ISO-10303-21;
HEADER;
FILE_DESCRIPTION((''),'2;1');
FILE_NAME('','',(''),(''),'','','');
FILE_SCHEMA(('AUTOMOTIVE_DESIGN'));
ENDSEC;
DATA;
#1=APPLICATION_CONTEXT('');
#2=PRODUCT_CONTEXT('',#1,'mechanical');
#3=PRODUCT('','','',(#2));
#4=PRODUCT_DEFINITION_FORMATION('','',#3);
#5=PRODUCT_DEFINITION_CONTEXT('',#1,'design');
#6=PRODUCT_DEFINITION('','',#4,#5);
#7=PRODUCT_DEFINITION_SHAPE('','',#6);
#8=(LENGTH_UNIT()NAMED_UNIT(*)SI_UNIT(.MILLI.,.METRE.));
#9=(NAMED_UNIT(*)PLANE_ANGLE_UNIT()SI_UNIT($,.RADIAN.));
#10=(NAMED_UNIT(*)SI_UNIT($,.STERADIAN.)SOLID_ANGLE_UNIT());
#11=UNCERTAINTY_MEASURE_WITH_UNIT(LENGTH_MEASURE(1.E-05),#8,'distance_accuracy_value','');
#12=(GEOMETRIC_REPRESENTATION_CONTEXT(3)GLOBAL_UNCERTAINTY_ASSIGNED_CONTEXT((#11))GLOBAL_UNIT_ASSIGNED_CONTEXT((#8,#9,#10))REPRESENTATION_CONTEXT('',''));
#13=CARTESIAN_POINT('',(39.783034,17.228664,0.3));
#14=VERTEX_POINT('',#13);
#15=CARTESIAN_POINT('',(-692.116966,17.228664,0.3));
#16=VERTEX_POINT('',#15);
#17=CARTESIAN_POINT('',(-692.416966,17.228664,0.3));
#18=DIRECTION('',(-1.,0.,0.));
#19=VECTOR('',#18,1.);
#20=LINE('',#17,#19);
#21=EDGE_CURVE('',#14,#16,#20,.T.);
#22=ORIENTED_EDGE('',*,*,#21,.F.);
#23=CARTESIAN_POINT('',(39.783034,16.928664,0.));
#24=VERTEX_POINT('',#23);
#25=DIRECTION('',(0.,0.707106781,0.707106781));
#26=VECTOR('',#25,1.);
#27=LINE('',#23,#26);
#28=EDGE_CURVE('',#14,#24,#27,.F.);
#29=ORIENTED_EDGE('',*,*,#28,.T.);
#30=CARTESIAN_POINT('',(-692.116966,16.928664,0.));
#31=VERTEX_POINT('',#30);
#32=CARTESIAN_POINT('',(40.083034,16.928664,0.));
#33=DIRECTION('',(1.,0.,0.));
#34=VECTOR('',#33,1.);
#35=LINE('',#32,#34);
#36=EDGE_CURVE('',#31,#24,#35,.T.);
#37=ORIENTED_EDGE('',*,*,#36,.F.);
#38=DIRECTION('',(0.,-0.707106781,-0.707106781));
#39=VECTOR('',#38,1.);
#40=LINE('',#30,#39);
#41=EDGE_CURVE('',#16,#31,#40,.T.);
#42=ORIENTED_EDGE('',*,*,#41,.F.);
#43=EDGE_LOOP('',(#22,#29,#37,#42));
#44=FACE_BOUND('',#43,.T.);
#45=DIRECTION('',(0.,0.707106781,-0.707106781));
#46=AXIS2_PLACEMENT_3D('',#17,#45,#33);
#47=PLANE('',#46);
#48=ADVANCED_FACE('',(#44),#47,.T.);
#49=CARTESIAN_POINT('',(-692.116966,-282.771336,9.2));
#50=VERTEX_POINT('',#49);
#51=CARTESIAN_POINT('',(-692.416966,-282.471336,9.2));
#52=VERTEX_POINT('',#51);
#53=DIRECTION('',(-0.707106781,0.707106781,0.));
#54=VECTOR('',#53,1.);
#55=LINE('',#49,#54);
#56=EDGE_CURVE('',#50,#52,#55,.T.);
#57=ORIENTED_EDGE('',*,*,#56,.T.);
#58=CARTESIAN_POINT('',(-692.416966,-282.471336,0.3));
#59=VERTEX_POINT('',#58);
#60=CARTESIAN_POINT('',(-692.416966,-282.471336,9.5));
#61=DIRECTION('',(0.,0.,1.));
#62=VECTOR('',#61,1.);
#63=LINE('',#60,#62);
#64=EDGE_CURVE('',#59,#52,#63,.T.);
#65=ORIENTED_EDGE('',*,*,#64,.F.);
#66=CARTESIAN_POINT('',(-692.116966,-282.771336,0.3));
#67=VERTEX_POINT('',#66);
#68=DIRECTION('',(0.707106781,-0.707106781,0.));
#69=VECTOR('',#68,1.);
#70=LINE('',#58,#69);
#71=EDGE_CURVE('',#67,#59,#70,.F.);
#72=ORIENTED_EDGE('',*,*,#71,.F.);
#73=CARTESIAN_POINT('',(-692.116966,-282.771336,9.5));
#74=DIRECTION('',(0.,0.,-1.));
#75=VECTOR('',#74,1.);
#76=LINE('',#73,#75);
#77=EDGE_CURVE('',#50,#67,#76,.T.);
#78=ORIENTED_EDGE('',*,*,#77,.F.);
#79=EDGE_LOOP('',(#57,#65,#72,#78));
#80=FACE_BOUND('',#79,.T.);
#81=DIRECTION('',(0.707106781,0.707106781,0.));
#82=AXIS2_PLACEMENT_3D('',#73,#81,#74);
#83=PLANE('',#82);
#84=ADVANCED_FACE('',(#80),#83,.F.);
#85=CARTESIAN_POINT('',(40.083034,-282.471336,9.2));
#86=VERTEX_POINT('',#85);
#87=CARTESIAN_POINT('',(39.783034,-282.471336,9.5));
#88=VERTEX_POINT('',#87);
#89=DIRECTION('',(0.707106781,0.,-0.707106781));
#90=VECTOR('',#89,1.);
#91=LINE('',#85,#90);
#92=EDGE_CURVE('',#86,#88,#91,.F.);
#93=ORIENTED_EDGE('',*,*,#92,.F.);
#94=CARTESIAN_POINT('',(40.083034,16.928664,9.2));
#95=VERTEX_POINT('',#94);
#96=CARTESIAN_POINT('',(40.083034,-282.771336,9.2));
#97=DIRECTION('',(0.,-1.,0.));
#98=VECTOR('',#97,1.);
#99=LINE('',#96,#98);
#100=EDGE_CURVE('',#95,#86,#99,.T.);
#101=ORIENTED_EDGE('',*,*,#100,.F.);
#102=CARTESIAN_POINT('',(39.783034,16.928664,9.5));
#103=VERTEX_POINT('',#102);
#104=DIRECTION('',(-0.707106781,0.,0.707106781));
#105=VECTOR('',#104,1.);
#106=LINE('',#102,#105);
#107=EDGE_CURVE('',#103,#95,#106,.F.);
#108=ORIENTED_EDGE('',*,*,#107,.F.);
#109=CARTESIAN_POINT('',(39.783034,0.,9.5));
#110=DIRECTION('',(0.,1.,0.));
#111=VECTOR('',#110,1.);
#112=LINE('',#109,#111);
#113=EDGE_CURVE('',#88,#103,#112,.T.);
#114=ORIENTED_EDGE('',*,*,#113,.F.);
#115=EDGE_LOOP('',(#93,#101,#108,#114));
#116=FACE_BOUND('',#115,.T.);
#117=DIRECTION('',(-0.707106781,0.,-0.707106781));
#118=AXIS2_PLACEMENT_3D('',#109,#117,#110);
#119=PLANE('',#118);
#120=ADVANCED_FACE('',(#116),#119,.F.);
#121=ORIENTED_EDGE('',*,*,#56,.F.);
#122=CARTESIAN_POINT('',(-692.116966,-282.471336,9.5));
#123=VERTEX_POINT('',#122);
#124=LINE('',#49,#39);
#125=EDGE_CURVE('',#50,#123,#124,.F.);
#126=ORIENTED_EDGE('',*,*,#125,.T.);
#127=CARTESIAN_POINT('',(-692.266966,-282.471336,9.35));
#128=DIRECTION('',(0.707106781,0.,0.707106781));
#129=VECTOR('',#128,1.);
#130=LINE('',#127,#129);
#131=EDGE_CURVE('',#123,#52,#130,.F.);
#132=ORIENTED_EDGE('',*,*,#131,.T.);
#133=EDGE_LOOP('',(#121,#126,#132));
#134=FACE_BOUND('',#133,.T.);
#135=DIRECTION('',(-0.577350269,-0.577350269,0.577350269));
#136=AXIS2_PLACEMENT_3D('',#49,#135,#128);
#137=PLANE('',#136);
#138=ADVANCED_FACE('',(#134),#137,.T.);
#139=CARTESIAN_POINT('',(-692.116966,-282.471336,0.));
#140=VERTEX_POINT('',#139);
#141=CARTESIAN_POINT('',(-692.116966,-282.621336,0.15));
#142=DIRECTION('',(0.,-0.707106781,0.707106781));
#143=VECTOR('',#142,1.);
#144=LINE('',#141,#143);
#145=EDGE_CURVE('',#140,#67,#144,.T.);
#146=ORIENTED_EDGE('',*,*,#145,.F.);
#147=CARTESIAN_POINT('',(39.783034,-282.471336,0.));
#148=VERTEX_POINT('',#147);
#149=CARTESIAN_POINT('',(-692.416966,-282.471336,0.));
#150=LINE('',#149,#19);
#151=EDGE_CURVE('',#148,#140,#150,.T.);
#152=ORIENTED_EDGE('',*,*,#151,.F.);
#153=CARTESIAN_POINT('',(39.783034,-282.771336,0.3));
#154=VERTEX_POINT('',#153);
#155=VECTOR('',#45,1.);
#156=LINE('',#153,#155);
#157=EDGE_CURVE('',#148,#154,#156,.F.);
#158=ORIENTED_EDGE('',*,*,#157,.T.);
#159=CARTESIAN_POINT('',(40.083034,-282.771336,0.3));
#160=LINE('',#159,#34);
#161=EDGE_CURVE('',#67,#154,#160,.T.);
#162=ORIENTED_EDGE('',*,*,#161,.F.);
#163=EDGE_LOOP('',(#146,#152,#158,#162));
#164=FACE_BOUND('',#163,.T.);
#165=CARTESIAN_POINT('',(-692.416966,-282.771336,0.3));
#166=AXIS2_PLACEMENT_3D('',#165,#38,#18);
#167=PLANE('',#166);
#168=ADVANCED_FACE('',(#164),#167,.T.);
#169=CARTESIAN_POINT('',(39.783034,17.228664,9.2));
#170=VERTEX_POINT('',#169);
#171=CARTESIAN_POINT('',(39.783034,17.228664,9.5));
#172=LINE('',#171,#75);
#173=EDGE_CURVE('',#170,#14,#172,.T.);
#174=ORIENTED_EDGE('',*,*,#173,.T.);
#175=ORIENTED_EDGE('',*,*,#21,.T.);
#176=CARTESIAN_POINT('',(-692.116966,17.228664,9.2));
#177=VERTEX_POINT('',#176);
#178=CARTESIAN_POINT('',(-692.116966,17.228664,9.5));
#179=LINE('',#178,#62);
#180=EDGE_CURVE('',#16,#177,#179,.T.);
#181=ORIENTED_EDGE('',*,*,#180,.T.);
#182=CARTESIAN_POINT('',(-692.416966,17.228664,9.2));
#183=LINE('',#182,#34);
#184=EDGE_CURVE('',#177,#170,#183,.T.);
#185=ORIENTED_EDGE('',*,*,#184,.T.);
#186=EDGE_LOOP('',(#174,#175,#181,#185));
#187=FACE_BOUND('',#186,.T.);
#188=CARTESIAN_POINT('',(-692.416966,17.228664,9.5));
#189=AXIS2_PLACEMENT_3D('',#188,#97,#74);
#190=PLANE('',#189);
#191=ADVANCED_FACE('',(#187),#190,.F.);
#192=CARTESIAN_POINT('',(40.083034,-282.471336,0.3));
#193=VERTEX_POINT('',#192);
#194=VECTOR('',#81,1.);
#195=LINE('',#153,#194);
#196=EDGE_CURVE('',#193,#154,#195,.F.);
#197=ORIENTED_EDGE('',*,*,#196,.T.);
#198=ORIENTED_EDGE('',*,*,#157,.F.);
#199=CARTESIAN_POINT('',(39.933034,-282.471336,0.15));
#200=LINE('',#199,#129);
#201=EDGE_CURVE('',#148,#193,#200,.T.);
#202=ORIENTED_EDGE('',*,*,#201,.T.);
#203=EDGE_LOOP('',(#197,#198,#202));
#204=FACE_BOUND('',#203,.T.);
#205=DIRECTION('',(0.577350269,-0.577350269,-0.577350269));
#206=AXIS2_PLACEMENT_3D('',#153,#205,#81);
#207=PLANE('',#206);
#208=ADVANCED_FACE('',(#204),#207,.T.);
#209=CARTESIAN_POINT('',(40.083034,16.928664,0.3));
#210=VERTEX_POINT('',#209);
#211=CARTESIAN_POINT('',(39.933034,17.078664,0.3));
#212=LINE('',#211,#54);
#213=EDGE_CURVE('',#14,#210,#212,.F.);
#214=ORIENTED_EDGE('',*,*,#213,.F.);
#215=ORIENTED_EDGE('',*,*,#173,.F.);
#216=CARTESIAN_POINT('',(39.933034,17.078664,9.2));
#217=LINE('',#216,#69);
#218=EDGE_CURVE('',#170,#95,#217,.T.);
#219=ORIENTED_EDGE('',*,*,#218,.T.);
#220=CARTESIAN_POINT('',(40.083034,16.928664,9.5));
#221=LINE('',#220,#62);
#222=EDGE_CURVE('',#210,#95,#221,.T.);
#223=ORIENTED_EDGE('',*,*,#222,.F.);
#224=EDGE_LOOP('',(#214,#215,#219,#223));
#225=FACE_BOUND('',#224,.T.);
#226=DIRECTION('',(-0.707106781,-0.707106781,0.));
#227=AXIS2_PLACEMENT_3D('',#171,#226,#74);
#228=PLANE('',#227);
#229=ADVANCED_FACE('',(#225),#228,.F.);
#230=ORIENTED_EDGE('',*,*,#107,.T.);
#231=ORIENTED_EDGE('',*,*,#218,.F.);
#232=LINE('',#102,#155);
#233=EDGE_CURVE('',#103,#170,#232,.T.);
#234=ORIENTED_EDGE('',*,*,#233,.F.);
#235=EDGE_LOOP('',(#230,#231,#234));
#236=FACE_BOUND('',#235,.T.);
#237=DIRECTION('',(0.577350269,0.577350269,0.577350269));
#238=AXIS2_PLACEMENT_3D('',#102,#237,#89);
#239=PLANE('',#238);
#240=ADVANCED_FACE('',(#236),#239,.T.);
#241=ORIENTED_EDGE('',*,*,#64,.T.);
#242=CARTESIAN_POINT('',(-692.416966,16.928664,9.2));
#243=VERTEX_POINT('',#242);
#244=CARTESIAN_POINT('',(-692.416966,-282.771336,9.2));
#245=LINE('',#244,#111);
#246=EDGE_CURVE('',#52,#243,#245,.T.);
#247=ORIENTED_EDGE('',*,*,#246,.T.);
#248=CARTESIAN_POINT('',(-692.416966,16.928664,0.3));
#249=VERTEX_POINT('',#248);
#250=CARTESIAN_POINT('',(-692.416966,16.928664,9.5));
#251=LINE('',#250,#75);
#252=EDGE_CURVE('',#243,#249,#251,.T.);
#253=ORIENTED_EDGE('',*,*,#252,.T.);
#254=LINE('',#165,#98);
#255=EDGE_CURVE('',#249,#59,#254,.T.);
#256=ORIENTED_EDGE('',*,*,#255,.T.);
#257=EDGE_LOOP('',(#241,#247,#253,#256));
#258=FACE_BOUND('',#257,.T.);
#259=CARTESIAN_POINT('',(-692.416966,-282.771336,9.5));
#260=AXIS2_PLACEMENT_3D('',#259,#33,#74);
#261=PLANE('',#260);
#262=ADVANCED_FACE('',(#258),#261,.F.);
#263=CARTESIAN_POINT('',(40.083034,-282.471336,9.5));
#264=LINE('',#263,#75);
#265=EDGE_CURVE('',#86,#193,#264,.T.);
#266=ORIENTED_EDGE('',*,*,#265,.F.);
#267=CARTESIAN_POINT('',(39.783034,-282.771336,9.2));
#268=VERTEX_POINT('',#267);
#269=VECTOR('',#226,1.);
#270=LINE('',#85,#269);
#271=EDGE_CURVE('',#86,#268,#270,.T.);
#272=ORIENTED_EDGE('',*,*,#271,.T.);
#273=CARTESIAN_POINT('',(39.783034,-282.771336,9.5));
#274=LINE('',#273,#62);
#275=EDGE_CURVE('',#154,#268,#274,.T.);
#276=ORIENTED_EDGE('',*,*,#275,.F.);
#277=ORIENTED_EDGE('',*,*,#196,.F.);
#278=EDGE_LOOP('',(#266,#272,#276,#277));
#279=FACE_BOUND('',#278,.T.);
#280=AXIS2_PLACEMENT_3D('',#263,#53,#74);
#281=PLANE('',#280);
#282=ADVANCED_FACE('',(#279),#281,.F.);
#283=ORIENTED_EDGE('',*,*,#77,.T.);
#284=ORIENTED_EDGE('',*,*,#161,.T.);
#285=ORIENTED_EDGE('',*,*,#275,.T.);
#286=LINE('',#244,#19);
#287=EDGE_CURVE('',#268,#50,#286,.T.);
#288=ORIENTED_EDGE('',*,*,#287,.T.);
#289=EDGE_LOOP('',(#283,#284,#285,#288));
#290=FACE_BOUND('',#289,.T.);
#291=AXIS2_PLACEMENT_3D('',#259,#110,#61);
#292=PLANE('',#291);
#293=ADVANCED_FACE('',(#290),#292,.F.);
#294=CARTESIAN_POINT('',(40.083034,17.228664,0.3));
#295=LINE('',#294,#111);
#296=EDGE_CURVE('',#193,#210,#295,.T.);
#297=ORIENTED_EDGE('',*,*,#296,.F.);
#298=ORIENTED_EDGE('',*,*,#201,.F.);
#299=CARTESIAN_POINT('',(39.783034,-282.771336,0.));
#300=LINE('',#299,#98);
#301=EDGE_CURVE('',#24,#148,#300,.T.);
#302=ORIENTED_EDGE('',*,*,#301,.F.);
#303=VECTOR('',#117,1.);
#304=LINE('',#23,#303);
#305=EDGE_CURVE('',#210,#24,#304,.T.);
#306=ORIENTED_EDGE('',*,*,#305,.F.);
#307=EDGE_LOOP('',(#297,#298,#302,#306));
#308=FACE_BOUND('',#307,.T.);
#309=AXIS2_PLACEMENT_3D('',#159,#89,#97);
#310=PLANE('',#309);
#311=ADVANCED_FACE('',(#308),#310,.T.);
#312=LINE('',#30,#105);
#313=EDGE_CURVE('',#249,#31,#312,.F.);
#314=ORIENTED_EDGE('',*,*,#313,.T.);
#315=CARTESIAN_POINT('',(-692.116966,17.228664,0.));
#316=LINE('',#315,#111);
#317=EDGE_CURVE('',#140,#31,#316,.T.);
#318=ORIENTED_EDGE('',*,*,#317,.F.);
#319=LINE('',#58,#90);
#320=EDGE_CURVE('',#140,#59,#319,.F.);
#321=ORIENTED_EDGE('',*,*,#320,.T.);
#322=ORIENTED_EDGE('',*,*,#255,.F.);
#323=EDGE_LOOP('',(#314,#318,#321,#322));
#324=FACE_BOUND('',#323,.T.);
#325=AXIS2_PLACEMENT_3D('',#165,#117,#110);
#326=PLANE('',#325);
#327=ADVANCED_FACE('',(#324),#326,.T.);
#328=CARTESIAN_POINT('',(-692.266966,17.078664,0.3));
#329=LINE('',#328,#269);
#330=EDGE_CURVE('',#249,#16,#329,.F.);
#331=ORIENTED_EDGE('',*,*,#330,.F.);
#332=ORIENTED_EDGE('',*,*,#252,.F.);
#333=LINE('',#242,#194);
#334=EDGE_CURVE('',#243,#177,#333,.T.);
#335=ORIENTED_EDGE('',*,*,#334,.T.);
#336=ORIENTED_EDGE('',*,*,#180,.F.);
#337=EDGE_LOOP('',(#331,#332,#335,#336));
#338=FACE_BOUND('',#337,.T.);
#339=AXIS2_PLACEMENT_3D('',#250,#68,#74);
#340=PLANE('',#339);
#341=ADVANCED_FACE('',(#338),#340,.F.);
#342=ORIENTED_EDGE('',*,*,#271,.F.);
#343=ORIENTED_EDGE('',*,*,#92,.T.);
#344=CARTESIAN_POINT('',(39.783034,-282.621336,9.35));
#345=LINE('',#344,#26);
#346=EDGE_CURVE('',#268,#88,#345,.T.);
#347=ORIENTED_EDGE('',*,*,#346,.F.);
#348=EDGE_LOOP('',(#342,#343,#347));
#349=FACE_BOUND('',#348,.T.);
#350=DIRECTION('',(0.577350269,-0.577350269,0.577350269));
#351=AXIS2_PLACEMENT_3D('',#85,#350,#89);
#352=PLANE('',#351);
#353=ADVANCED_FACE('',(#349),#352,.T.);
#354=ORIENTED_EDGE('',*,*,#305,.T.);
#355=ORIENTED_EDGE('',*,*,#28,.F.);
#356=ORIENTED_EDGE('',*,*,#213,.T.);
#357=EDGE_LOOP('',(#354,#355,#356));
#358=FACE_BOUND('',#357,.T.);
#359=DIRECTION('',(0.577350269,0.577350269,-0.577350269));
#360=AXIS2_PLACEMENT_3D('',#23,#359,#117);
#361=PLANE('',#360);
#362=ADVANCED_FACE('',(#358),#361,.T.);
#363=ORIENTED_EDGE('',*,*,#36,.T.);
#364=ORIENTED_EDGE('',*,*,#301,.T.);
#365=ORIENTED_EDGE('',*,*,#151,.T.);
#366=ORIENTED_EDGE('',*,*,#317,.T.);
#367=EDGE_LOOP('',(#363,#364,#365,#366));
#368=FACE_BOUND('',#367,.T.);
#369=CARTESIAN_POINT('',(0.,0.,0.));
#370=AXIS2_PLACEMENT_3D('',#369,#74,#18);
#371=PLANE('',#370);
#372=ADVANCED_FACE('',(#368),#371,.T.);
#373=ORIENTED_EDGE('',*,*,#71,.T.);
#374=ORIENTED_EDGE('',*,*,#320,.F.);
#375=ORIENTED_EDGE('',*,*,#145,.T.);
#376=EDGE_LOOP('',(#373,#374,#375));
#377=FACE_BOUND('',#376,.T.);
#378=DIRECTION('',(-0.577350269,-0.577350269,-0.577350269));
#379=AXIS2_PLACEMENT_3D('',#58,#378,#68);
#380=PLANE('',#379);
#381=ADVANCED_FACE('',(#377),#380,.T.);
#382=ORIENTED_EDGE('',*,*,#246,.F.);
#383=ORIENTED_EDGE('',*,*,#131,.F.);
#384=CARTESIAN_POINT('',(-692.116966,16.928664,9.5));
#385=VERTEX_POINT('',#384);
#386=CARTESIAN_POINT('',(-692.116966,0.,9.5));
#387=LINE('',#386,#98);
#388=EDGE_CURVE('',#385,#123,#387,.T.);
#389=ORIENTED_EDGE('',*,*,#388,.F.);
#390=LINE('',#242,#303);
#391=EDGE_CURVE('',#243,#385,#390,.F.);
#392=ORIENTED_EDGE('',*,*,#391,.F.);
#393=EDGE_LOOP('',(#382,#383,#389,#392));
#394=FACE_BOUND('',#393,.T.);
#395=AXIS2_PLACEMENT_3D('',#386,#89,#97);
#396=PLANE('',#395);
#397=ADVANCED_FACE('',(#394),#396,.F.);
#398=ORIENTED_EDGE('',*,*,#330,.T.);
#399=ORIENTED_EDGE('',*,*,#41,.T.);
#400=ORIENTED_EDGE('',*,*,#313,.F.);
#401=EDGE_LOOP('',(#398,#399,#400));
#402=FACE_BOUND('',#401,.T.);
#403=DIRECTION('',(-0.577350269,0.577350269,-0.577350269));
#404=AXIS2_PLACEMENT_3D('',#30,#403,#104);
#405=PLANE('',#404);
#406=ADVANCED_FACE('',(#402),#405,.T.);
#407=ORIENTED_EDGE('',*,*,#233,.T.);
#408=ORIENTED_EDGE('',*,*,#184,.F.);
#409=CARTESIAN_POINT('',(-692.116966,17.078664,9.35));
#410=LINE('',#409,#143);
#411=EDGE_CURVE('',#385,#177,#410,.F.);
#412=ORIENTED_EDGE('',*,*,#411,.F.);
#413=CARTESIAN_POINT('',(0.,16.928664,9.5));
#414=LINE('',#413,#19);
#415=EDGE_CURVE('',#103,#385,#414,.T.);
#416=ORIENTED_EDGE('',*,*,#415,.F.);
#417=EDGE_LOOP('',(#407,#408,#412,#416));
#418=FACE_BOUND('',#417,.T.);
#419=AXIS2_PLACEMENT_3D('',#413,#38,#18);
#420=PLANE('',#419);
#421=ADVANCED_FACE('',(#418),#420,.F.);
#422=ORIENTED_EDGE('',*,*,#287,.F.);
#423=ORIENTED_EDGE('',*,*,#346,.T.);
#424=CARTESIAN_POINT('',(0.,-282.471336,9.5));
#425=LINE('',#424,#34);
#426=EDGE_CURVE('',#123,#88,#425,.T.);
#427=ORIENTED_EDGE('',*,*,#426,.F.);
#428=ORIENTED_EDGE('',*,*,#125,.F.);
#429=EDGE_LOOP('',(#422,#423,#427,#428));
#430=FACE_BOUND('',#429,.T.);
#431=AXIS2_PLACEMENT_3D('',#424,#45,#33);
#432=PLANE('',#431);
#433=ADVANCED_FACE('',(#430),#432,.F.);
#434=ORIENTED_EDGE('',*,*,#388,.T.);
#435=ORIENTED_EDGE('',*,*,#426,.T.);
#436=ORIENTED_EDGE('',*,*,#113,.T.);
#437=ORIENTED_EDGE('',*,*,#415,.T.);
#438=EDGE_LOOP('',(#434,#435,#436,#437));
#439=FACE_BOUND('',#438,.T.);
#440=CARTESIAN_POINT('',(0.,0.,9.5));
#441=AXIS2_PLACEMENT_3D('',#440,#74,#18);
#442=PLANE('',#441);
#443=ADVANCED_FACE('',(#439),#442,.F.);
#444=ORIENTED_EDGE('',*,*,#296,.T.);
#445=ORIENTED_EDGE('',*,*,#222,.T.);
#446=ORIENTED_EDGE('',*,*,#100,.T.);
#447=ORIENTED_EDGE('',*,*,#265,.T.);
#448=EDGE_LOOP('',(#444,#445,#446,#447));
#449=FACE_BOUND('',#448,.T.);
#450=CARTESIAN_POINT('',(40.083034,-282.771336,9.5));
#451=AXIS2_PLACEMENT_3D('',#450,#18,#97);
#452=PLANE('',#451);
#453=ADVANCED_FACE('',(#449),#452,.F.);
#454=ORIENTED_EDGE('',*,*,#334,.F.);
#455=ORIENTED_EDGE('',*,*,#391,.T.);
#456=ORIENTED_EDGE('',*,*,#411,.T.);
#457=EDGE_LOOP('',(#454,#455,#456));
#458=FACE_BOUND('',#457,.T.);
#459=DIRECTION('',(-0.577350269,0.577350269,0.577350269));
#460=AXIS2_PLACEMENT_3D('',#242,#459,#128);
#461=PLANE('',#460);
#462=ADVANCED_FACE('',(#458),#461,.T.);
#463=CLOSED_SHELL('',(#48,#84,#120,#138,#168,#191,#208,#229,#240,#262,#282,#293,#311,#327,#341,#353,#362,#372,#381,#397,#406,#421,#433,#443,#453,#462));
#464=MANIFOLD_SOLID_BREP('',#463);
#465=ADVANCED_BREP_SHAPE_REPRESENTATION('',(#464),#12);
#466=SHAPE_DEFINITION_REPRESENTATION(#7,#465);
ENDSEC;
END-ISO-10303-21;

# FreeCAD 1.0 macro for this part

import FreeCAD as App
import Part
import Sketcher
Q = App.Units.Quantity

doc = App.newDocument("Part")
body = doc.addObject("PartDesign::Body", "Body")

# Sketch on XY plane
sketch1 = body.newObject("Sketcher::SketchObject", "Sketch")
sketch1.AttachmentSupport = (doc.getObject("XY_Plane"), [""])
sketch1.MapMode = "FlatFace"
sketch1.addGeometry([
    Part.LineSegment(App.Vector(-692.416966, 17.228664, 0), App.Vector(-692.416966, -282.771336, 0)),
    Part.LineSegment(App.Vector(-692.416966, -282.771336, 0), App.Vector(40.083034, -282.771336, 0)),
    Part.LineSegment(App.Vector(40.083034, -282.771336, 0), App.Vector(40.083034, 17.228664, 0)),
    Part.LineSegment(App.Vector(40.083034, 17.228664, 0), App.Vector(-692.416966, 17.228664, 0)),
], False)
sketch1.addConstraint([
    Sketcher.Constraint("Coincident", 0, 2, 1, 1),
    Sketcher.Constraint("Coincident", 1, 2, 2, 1),
    Sketcher.Constraint("Coincident", 2, 2, 3, 1),
    Sketcher.Constraint("Coincident", 3, 2, 0, 1),
    Sketcher.Constraint("Vertical", 0),
    Sketcher.Constraint("Horizontal", 1),
    Sketcher.Constraint("Vertical", 2),
    Sketcher.Constraint("Horizontal", 3),
    Sketcher.Constraint("DistanceY", 0, 2, 0, 1, Q("300 mm")),
    Sketcher.Constraint("DistanceX", 1, 1, 1, 2, Q("732.5 mm")),
    Sketcher.Constraint("DistanceX", 0, 2, -1, 1, Q("692.416966 mm")),
    Sketcher.Constraint("DistanceY", 0, 2, -1, 1, Q("282.771336 mm")),
])
pad1 = body.newObject("PartDesign::Pad", "Pad")
pad1.Profile = sketch1
pad1.Length = 9.5
doc.recompute()

chamfer = body.newObject("PartDesign::Chamfer", "Chamfer")
chamfer.Base = (pad1, ["Edge1"])
chamfer.UseAllEdges = True
chamfer.Size = 0.3

doc.recompute()
